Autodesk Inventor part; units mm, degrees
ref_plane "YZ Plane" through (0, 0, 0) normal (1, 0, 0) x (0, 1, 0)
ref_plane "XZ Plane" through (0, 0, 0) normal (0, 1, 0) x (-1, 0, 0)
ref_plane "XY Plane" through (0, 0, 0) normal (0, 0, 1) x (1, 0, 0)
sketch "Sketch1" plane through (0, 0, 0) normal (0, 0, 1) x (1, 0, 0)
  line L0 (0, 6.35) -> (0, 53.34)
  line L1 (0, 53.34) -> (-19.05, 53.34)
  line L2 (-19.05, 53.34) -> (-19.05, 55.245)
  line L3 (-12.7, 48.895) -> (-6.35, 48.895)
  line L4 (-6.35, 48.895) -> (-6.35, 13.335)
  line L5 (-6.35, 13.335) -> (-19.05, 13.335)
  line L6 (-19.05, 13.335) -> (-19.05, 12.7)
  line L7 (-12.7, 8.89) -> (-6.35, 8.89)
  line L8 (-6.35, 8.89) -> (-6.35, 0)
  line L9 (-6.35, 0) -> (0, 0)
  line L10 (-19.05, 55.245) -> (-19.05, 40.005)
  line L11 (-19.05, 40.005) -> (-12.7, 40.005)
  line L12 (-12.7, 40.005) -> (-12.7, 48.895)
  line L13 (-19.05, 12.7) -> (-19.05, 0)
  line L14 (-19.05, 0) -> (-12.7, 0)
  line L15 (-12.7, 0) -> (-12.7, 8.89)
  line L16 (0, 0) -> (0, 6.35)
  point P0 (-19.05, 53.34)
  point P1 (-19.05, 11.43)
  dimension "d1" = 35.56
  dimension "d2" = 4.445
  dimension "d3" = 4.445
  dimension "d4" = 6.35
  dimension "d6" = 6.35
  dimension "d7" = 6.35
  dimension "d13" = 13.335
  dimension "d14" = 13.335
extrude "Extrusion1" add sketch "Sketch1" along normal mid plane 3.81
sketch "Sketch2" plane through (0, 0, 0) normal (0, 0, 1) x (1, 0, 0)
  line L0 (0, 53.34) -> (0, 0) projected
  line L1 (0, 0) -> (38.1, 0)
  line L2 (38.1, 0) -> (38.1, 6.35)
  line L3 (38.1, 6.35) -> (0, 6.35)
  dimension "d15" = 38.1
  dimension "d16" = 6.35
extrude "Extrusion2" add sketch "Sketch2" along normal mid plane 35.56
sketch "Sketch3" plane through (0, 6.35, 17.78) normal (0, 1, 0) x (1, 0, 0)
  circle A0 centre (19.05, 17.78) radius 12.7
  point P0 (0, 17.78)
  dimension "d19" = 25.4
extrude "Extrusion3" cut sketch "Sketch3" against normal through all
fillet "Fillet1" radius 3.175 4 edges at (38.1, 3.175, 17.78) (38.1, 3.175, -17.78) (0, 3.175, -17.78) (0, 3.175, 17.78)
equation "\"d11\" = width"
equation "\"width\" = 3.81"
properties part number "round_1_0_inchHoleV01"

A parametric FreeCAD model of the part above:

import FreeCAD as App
import Part
import Sketcher
from FreeCAD import Vector
Q = App.Units.Quantity


def edges_at(feature, points):
    """Names of the edges that pass closest to the given points."""
    edges = feature.Shape.Edges
    near = lambda p: min(range(len(edges)), key=lambda i: edges[i].distToShape(Part.Vertex(*p))[0])
    return sorted({f"Edge{near(p) + 1}" for p in points})

doc = App.newDocument("Part")
params = doc.addObject("Spreadsheet::Sheet", "Params")
for row, (alias, value) in enumerate([
    ("sketch1_height", "1.4 in"),
    ("sketch1_width", "0.25 in"),
    ("sketch1_height2", "0.525 in"),
    ("sketch1_height3", "2.1 in"),
    ("pad1_length", "0.15 in"),
    ("sketch2_width", "1.5 in"),
    ("sketch2_height", "0.25 in"),
    ("pad2_length", "1.4 in"),
    ("sketch3_diameter", "1 in"),
    ("fillet_radius", "0.125 in"),
], start=1):
    params.set(f"A{row}", alias)
    params.set(f"B{row}", "=" + value)
    params.setAlias(f"B{row}", alias)

body = doc.addObject("PartDesign::Body", "Body")

sketch1 = body.newObject("Sketcher::SketchObject", "Sketch")
sketch1.AttachmentSupport = (doc.getObject("XY_Plane"), [""])
sketch1.MapMode = "FlatFace"
sketch1.addGeometry([
    Part.LineSegment(Vector(0, 0, 0), Vector(0, 53, 0)),
    Part.LineSegment(Vector(0, 53, 0), Vector(-19, 53, 0)),
    Part.LineSegment(Vector(-19, 53, 0), Vector(-19, 40, 0)),
    Part.LineSegment(Vector(-19, 40, 0), Vector(-13, 40, 0)),
    Part.LineSegment(Vector(-13, 40, 0), Vector(-13, 49, 0)),
    Part.LineSegment(Vector(-13, 49, 0), Vector(-6, 49, 0)),
    Part.LineSegment(Vector(-6, 49, 0), Vector(-6, 13, 0)),
    Part.LineSegment(Vector(-6, 13, 0), Vector(-19, 13, 0)),
    Part.LineSegment(Vector(-19, 13, 0), Vector(-19, 0, 0)),
    Part.LineSegment(Vector(-19, 0, 0), Vector(-13, 0, 0)),
    Part.LineSegment(Vector(-13, 0, 0), Vector(-13, 9, 0)),
    Part.LineSegment(Vector(-13, 9, 0), Vector(-6, 9, 0)),
    Part.LineSegment(Vector(-6, 9, 0), Vector(-6, 0, 0)),
    Part.LineSegment(Vector(-6, 0, 0), Vector(0, 0, 0)),
], False)
sketch1.addConstraint([
    Sketcher.Constraint("Coincident", 0, 2, 1, 1),
    Sketcher.Constraint("Coincident", 1, 2, 2, 1),
    Sketcher.Constraint("Coincident", 2, 2, 3, 1),
    Sketcher.Constraint("Coincident", 3, 2, 4, 1),
    Sketcher.Constraint("Coincident", 4, 2, 5, 1),
    Sketcher.Constraint("Coincident", 5, 2, 6, 1),
    Sketcher.Constraint("Coincident", 6, 2, 7, 1),
    Sketcher.Constraint("Coincident", 7, 2, 8, 1),
    Sketcher.Constraint("Coincident", 8, 2, 9, 1),
    Sketcher.Constraint("Coincident", 9, 2, 10, 1),
    Sketcher.Constraint("Coincident", 10, 2, 11, 1),
    Sketcher.Constraint("Coincident", 11, 2, 12, 1),
    Sketcher.Constraint("Coincident", 12, 2, 13, 1),
    Sketcher.Constraint("Coincident", 13, 2, 0, 1),
    Sketcher.Constraint("Vertical", 0),
    Sketcher.Constraint("Horizontal", 1),
    Sketcher.Constraint("Vertical", 2),
    Sketcher.Constraint("Horizontal", 3),
    Sketcher.Constraint("Vertical", 4),
    Sketcher.Constraint("Horizontal", 5),
    Sketcher.Constraint("Vertical", 6),
    Sketcher.Constraint("Horizontal", 7),
    Sketcher.Constraint("Vertical", 8),
    Sketcher.Constraint("Horizontal", 9),
    Sketcher.Constraint("Vertical", 10),
    Sketcher.Constraint("Horizontal", 11),
    Sketcher.Constraint("Vertical", 12),
    Sketcher.Constraint("Horizontal", 13),
    Sketcher.Constraint("Coincident", 13, 2, -1, 1),
    Sketcher.Constraint("PointOnObject", 8, 2, -1),
    Sketcher.Constraint("Vertical", 2, 2, 7, 2),
    Sketcher.Constraint("Vertical", 4, 2, 9, 2),
    Sketcher.Constraint("Vertical", 6, 2, 11, 2),
    Sketcher.Constraint("Equal", 3, 5),
    Sketcher.Constraint("Equal", 11, 13),
    Sketcher.Constraint("Equal", 2, 8),
    Sketcher.Constraint("Equal", 4, 10),
    Sketcher.Constraint("DistanceY", 6, 2, 6, 1, Q("1.4 in")),
    Sketcher.Constraint("DistanceX", 3, 1, 3, 2, Q("0.25 in")),
    Sketcher.Constraint("DistanceY", 2, 2, 2, 1, Q("0.525 in")),
    Sketcher.Constraint("DistanceY", 0, 1, 0, 2, Q("2.1 in")),
])
sketch1.setExpression("Constraints[37]", "Params.sketch1_height")
sketch1.setExpression("Constraints[38]", "Params.sketch1_width")
sketch1.setExpression("Constraints[39]", "Params.sketch1_height2")
sketch1.setExpression("Constraints[40]", "Params.sketch1_height3")
pad1 = body.newObject("PartDesign::Pad", "Pad")
pad1.Profile = sketch1
pad1.setExpression("Length", "Params.pad1_length")
pad1.Midplane = True

sketch2 = body.newObject("Sketcher::SketchObject", "Sketch001")
sketch2.AttachmentSupport = (doc.getObject("XY_Plane"), [""])
sketch2.MapMode = "FlatFace"
sketch2.addGeometry([
    Part.LineSegment(Vector(38, 6, 0), Vector(0, 6, 0)),
    Part.LineSegment(Vector(0, 6, 0), Vector(0, 0, 0)),
    Part.LineSegment(Vector(0, 0, 0), Vector(38, 0, 0)),
    Part.LineSegment(Vector(38, 0, 0), Vector(38, 6, 0)),
], False)
sketch2.addConstraint([
    Sketcher.Constraint("Coincident", 0, 2, 1, 1),
    Sketcher.Constraint("Coincident", 1, 2, 2, 1),
    Sketcher.Constraint("Coincident", 2, 2, 3, 1),
    Sketcher.Constraint("Coincident", 3, 2, 0, 1),
    Sketcher.Constraint("Horizontal", 0),
    Sketcher.Constraint("Vertical", 1),
    Sketcher.Constraint("Horizontal", 2),
    Sketcher.Constraint("Vertical", 3),
    Sketcher.Constraint("Coincident", 1, 2, -1, 1),
    Sketcher.Constraint("DistanceX", 0, 2, 0, 1, Q("1.5 in")),
    Sketcher.Constraint("DistanceY", 1, 2, 1, 1, Q("0.25 in")),
])
sketch2.setExpression("Constraints[9]", "Params.sketch2_width")
sketch2.setExpression("Constraints[10]", "Params.sketch2_height")
pad2 = body.newObject("PartDesign::Pad", "Pad001")
pad2.Profile = sketch2
pad2.setExpression("Length", "Params.pad2_length")
pad2.Midplane = True

sketch3 = body.newObject("Sketcher::SketchObject", "Sketch002")
sketch3.AttachmentSupport = (doc.getObject("XZ_Plane"), [""])
sketch3.MapMode = "FlatFace"
sketch3.AttachmentOffset = App.Placement(Vector(0, 0, -0.25 * 25.4), App.Rotation())
sketch3.addGeometry(Part.Circle(Vector(19, 0, 0), Vector(0, 0, 1), 13), False)
sketch3.addConstraint([
    Sketcher.Constraint("PointOnObject", 0, 3, -1),
    Sketcher.Constraint("Diameter", 0, Q("1 in")),
    Sketcher.Constraint("DistanceX", -1, 1, 0, 3, Q("0.75 in")),
])
sketch3.setExpression("Constraints[1]", "Params.sketch3_diameter")
pocket1 = body.newObject("PartDesign::Pocket", "Pocket")
pocket1.Profile = sketch3
pocket1.Type = "ThroughAll"
pocket1.Reversed = True
doc.recompute()

fillet = body.newObject("PartDesign::Fillet", "Fillet")
fillet.Base = (pocket1, edges_at(pocket1, [
    (38.1, 3.175, 17.78),
    (38.1, 3.175, -17.78),
    (0, 3.175, -17.78),
    (0, 3.175, 17.78),
]))
fillet.setExpression("Radius", "Params.fillet_radius")

doc.recompute()
